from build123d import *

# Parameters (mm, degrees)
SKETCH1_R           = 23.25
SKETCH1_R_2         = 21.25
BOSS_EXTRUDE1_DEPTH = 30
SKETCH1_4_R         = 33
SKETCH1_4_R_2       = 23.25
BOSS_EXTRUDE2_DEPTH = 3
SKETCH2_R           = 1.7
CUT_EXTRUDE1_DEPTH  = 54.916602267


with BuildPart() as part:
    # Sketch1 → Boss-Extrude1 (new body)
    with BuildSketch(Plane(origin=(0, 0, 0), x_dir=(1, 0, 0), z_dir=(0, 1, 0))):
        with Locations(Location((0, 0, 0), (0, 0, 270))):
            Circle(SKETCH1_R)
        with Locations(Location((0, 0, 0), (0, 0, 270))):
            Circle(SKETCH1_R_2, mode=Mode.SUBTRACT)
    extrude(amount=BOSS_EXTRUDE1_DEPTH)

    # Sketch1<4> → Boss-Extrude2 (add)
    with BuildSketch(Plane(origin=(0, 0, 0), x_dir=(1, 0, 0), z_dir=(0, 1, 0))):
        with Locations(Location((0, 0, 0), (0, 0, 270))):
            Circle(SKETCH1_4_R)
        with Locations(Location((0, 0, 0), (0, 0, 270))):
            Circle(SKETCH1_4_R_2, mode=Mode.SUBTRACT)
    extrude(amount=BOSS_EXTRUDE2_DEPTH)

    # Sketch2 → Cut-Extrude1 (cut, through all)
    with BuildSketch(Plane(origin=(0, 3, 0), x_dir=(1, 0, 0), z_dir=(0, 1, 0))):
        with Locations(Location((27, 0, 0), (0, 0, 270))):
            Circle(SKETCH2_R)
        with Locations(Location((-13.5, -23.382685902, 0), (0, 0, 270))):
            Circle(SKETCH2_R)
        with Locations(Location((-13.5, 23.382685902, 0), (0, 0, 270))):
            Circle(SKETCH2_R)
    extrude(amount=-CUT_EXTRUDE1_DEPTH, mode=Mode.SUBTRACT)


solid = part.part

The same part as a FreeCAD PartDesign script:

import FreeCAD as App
import Part
import Sketcher

doc = App.newDocument("Part")
body = doc.addObject("PartDesign::Body", "Body")

sketch1 = body.newObject("Sketcher::SketchObject", "Sketch")
sketch1.AttachmentSupport = (doc.getObject("XZ_Plane"), [""])
sketch1.MapMode = "FlatFace"
sketch1.addGeometry([
    Part.Circle(App.Vector(0, 0, 0), App.Vector(0, 0, 1), 23),
    Part.Circle(App.Vector(0, 0, 0), App.Vector(0, 0, 1), 21),
], False)
sketch1.addConstraint([
    Sketcher.Constraint("Coincident", 0, 3, -1, 1),
    Sketcher.Constraint("Coincident", 1, 3, -1, 1),
    Sketcher.Constraint("Diameter", 0, 46.5),
    Sketcher.Constraint("Diameter", 1, 42.5),
])
pad1 = body.newObject("PartDesign::Pad", "Pad")
pad1.Profile = sketch1
pad1.Length = 30
pad1.Reversed = True

sketch2 = body.newObject("Sketcher::SketchObject", "Sketch001")
sketch2.AttachmentSupport = (doc.getObject("XZ_Plane"), [""])
sketch2.MapMode = "FlatFace"
sketch2.addGeometry([
    Part.Circle(App.Vector(0, 0, 0), App.Vector(0, 0, 1), 33),
    Part.Circle(App.Vector(0, 0, 0), App.Vector(0, 0, 1), 23),
], False)
sketch2.addConstraint([
    Sketcher.Constraint("Coincident", 0, 3, -1, 1),
    Sketcher.Constraint("Coincident", 1, 3, -1, 1),
    Sketcher.Constraint("Diameter", 0, 66.0),
    Sketcher.Constraint("Diameter", 1, 46.5),
])
pad2 = body.newObject("PartDesign::Pad", "Pad001")
pad2.Profile = sketch2
pad2.Length = 3
pad2.Reversed = True

sketch3 = body.newObject("Sketcher::SketchObject", "Sketch002")
sketch3.AttachmentSupport = (doc.getObject("XZ_Plane"), [""])
sketch3.MapMode = "FlatFace"
sketch3.AttachmentOffset = App.Placement(App.Vector(0, 0, -3), App.Rotation())
sketch3.addGeometry([
    Part.Circle(App.Vector(27, 0, 0), App.Vector(0, 0, 1), 1.7),
    Part.Circle(App.Vector(-13.5, 23.4, 0), App.Vector(0, 0, 1), 1.7),
    Part.Circle(App.Vector(-13.5, -23.4, 0), App.Vector(0, 0, 1), 1.7),
], False)
sketch3.addConstraint([
    Sketcher.Constraint("Equal", 0, 1),
    Sketcher.Constraint("Equal", 1, 2),
    Sketcher.Constraint("Symmetric", 1, 3, 2, 3, -1),
    Sketcher.Constraint("PointOnObject", 0, 3, -1),
    Sketcher.Constraint("Diameter", 0, 3.4),
    Sketcher.Constraint("DistanceX", -1, 1, 0, 3, 27.0),
    Sketcher.Constraint("DistanceX", 1, 3, -1, 1, 13.5),
    Sketcher.Constraint("DistanceY", 2, 3, 1, 3, 46.765372),
])
pocket1 = body.newObject("PartDesign::Pocket", "Pocket")
pocket1.Profile = sketch3
pocket1.Type = "ThroughAll"
pocket1.Reversed = True

doc.recompute()
